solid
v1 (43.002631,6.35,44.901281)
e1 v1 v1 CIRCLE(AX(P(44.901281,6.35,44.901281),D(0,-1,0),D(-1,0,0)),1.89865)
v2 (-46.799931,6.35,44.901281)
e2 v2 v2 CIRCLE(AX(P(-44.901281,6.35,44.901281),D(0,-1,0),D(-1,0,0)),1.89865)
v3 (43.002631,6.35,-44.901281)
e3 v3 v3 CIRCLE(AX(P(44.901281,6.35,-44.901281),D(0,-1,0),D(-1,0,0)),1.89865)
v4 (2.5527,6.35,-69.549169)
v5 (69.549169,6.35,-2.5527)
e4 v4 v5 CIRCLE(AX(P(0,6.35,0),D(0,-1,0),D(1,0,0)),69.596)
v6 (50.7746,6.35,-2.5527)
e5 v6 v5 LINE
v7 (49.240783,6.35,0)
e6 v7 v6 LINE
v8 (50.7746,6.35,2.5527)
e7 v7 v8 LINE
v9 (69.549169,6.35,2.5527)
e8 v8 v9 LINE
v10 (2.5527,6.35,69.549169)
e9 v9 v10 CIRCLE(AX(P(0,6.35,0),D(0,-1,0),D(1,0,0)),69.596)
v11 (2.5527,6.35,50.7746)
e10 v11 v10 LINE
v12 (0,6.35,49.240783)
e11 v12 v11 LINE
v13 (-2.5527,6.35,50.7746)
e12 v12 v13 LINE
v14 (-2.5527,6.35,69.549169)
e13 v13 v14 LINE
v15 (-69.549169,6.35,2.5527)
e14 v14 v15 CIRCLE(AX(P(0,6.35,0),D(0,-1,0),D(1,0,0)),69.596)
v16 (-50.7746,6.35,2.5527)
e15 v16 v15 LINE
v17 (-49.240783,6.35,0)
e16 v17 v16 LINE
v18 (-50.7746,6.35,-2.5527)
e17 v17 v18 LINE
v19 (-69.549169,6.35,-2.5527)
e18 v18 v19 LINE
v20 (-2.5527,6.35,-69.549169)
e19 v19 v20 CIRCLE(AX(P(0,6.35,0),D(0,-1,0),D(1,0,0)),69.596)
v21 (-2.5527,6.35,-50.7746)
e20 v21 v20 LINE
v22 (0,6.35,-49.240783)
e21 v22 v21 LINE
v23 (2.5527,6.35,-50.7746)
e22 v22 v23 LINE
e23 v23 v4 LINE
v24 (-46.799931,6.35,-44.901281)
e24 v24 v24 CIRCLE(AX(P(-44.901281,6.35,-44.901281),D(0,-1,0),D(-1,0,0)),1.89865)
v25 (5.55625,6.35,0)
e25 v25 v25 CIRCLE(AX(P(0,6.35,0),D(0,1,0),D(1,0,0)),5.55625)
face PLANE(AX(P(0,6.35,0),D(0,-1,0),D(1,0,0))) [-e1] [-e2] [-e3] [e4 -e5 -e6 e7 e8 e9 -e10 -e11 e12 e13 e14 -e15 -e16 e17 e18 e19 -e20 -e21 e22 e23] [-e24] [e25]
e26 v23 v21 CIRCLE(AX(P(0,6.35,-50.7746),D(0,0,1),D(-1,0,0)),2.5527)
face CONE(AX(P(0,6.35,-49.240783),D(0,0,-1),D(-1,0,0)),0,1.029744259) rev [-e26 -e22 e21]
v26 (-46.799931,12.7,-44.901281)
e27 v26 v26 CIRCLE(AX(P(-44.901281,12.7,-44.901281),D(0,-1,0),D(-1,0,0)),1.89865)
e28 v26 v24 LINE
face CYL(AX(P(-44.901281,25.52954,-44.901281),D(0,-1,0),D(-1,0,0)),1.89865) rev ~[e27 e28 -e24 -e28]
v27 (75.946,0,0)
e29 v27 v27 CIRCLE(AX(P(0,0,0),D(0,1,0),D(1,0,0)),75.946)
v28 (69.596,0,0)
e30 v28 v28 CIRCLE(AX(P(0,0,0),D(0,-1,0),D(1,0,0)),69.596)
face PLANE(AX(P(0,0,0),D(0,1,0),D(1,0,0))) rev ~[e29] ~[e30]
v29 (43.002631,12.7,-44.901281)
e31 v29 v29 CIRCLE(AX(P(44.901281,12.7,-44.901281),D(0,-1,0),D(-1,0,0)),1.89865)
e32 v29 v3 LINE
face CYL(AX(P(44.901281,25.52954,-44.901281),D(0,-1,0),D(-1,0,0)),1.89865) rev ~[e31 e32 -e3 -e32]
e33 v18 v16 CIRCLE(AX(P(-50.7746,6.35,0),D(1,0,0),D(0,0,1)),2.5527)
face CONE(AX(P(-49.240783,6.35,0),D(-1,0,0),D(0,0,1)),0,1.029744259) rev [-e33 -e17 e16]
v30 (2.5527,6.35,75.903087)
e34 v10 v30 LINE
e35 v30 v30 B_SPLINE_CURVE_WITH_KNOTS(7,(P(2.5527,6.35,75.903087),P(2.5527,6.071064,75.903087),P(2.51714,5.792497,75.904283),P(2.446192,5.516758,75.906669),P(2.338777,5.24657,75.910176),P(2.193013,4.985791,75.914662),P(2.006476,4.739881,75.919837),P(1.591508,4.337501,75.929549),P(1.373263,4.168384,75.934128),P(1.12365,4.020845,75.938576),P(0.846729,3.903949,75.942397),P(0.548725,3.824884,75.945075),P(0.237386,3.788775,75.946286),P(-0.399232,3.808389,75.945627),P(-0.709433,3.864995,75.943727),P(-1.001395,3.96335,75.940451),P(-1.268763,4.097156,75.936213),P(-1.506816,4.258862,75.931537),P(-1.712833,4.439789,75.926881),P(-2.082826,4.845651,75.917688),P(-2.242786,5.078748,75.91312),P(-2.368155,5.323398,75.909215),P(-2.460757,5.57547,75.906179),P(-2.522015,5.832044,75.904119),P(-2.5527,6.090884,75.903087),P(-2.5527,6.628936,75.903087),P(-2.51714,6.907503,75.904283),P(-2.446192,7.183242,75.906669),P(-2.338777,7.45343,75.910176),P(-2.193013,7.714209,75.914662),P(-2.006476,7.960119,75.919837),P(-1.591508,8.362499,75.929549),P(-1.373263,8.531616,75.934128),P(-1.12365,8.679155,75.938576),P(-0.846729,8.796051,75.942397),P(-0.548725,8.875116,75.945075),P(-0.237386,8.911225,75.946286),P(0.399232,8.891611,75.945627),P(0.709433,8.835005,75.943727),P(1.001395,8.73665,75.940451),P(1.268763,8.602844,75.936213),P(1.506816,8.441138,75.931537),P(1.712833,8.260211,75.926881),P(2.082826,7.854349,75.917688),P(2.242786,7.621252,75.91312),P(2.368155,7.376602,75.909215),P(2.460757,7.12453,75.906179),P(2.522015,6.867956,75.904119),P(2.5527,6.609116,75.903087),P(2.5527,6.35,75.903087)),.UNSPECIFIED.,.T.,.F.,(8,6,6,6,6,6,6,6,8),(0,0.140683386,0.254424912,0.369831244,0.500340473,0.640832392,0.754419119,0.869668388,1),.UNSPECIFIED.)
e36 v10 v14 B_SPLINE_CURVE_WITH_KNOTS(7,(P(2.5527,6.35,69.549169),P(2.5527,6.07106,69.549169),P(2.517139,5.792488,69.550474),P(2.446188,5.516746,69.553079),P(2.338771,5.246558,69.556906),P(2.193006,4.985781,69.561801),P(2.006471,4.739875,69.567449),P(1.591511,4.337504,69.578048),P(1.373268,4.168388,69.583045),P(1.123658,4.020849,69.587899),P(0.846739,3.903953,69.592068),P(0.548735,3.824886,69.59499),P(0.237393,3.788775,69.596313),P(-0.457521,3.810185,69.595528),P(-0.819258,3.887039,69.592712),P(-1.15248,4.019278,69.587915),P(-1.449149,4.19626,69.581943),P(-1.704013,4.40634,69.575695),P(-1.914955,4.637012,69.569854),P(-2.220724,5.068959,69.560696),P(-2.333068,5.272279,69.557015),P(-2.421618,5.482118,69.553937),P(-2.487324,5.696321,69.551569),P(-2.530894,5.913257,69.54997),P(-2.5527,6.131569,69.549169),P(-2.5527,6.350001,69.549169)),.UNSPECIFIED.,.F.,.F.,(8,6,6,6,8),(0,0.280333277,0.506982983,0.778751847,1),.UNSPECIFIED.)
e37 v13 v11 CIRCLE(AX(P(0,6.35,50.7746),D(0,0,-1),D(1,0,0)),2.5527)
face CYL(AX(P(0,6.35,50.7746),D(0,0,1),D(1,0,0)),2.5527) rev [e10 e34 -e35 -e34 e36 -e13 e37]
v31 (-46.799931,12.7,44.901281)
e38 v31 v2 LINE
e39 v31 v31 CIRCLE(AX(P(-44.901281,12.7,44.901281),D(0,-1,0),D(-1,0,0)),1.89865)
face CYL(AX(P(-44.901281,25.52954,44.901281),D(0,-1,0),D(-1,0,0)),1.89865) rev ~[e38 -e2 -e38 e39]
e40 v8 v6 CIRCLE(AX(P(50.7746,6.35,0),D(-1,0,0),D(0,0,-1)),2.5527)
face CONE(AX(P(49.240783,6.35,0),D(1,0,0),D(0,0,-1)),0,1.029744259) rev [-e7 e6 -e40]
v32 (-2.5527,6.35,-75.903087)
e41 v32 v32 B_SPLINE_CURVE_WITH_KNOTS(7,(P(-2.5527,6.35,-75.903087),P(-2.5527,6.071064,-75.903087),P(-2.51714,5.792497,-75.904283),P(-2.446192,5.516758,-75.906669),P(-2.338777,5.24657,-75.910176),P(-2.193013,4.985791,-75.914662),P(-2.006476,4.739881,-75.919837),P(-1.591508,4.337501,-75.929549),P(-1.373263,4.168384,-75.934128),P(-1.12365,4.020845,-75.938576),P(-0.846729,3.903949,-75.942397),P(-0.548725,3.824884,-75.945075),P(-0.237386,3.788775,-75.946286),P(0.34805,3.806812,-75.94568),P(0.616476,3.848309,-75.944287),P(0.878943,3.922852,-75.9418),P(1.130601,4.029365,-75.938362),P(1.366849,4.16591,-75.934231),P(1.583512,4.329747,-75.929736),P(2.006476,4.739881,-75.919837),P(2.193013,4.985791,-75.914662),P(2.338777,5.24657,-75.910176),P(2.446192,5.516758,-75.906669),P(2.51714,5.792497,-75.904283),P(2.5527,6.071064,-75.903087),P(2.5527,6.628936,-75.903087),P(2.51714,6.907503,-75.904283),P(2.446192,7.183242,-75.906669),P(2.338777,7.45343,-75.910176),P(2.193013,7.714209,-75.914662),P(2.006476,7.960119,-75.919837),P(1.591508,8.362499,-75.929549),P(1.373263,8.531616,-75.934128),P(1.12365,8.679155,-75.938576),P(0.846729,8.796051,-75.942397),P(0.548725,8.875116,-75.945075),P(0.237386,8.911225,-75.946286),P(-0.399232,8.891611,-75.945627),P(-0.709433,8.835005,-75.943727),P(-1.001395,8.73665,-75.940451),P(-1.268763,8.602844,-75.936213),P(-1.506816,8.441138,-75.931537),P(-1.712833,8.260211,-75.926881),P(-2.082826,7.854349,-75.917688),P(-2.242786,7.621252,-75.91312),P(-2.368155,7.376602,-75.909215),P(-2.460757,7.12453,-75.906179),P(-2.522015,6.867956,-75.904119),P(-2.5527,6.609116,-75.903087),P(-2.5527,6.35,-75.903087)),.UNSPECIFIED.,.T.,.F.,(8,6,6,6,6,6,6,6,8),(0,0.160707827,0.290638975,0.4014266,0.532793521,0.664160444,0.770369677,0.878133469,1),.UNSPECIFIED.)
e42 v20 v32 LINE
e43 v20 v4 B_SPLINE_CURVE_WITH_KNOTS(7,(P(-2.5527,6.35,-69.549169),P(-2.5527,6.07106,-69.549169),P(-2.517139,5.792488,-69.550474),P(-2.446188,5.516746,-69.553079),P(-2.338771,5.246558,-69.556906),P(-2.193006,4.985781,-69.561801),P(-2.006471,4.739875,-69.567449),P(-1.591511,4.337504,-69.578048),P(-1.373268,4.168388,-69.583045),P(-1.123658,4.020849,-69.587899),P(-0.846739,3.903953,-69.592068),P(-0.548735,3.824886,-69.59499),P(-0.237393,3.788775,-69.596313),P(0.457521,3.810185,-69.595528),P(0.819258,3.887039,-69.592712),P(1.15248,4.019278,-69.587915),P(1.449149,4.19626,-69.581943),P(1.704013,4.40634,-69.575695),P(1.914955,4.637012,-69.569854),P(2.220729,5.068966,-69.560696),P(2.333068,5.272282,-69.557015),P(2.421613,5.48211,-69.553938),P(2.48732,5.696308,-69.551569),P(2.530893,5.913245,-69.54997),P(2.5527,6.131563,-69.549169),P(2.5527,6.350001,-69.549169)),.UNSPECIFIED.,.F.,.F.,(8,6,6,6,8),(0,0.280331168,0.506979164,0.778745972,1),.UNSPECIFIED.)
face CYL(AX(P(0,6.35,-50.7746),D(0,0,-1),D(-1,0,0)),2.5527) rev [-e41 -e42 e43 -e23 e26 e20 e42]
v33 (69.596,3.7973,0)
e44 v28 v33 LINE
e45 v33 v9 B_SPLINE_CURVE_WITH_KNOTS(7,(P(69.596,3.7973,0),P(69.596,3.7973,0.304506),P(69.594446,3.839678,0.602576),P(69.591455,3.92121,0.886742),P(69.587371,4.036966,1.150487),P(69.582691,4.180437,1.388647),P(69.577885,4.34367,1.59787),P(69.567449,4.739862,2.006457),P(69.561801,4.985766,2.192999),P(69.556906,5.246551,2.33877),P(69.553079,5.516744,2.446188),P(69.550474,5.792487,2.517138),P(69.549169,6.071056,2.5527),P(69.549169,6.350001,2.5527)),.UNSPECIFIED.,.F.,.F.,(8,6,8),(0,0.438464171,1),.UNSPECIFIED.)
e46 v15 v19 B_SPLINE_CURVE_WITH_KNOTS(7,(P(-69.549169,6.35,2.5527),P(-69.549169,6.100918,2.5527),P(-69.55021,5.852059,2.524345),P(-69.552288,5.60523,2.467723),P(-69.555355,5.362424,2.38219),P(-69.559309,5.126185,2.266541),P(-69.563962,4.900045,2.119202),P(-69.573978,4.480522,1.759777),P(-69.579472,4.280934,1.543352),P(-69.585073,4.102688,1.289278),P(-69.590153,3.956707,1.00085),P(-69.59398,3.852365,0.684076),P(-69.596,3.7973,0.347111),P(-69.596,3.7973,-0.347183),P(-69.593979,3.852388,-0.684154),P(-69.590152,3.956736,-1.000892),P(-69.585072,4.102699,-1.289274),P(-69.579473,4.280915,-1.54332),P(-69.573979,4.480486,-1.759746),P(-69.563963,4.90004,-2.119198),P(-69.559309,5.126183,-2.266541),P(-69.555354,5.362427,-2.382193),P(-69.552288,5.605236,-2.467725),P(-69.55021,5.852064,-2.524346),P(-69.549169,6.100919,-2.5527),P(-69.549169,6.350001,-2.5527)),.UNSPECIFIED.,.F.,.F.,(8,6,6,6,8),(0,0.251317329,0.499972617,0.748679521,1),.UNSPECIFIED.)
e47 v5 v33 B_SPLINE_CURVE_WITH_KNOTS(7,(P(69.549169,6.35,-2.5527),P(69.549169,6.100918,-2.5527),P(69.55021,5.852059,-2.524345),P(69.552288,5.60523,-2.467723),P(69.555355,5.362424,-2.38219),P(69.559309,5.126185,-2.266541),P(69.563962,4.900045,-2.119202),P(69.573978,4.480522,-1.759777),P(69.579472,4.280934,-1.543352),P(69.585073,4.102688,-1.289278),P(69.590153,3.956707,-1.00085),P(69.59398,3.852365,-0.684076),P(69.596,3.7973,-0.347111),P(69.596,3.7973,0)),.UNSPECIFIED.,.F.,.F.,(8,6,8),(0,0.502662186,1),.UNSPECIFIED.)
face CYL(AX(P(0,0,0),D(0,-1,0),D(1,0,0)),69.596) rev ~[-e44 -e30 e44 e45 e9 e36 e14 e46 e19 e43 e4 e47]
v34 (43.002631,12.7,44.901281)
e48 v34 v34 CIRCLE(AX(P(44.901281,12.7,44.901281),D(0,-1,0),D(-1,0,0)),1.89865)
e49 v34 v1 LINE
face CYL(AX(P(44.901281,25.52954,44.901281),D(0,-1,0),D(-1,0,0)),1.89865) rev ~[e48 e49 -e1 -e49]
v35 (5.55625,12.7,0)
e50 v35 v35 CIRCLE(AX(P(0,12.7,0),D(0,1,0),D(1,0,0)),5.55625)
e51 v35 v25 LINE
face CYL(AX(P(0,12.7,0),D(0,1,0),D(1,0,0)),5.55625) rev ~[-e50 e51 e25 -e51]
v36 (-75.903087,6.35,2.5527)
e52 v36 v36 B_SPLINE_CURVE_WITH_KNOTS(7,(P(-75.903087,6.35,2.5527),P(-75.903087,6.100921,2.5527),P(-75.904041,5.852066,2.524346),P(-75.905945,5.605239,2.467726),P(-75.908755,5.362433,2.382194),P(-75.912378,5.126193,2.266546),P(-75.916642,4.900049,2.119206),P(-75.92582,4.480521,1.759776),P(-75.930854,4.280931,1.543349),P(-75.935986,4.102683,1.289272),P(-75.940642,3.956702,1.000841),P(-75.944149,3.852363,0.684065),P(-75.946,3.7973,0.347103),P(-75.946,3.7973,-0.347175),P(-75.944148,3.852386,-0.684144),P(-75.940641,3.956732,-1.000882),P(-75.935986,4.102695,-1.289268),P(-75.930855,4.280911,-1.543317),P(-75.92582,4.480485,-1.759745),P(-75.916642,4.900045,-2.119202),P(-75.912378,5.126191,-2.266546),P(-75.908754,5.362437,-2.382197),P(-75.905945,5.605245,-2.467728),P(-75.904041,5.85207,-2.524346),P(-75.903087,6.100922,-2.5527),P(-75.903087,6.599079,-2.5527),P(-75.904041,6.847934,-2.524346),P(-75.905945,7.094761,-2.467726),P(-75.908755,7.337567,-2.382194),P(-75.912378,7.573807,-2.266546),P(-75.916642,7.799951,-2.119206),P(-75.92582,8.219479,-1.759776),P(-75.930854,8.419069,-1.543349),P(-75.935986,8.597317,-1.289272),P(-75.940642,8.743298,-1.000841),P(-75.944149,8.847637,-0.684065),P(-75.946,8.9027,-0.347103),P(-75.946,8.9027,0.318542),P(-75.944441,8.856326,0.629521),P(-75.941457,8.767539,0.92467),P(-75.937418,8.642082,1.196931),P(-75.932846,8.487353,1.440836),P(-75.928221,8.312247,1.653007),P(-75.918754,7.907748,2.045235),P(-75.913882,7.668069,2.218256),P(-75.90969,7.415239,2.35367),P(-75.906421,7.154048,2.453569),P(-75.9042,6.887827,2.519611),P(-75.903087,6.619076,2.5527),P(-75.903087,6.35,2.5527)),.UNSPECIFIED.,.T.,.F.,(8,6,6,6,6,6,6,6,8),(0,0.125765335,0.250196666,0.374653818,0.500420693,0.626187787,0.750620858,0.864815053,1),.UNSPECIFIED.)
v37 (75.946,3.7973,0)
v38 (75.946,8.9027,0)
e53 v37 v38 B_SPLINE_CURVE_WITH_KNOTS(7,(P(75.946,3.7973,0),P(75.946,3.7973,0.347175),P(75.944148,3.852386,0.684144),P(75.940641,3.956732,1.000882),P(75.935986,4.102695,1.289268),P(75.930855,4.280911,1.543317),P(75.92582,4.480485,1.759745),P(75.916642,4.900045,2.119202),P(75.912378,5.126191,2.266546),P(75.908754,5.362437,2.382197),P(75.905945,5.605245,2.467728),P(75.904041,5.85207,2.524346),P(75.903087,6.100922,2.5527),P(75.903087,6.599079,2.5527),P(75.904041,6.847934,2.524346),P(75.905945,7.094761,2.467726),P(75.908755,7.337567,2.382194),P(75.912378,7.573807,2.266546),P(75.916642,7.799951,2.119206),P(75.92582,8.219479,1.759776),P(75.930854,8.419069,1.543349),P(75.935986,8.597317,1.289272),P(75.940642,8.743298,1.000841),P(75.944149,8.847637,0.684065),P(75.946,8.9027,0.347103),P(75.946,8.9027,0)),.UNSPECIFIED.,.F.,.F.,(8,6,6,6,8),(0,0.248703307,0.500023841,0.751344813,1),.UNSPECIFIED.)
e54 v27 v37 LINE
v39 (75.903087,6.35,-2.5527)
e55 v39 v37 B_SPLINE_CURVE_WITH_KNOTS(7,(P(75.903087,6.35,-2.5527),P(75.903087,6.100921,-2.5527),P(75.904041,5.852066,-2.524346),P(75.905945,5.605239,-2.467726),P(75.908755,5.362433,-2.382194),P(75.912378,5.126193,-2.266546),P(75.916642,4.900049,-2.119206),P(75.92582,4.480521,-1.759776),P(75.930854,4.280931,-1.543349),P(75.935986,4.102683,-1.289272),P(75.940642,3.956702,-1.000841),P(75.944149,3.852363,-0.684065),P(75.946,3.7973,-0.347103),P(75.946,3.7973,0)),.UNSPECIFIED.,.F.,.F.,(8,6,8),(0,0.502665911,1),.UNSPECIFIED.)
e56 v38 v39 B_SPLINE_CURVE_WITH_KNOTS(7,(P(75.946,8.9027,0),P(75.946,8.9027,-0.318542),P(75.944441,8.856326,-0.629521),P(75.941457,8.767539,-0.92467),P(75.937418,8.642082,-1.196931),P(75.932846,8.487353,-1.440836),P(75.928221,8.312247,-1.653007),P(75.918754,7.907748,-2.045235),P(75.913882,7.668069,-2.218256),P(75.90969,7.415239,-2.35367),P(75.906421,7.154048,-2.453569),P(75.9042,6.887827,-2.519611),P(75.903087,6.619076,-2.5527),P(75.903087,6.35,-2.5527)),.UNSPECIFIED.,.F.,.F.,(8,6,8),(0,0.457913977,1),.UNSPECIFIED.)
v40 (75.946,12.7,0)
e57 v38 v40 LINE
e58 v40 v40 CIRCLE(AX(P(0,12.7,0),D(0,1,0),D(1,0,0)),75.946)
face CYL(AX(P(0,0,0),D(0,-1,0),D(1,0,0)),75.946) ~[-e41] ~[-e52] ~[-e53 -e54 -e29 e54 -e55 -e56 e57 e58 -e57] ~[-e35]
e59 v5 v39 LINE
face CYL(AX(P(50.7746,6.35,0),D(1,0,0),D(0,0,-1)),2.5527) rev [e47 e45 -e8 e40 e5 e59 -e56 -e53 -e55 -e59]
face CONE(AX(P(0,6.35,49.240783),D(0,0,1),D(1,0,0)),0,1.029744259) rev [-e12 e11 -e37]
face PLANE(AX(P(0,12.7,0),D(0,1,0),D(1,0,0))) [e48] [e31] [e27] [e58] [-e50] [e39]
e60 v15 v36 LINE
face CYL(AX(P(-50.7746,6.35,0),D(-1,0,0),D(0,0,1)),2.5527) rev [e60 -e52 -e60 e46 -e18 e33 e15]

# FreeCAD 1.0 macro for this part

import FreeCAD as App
import Part
import Sketcher

V = App.Vector
Q = App.Units.Quantity

doc = App.newDocument("Part")
body = doc.addObject("PartDesign::Body", "Body")

sketch1 = body.newObject("Sketcher::SketchObject", "Sketch")
sketch1.AttachmentSupport = (doc.getObject("XZ_Plane"), [""])
sketch1.MapMode = "FlatFace"
sketch1.addGeometry(Part.Circle(V(0, 0, 0), V(0, 0, 1), 76), False)
sketch1.addConstraint([
    Sketcher.Constraint("Coincident", 0, 3, -1, 1),
    Sketcher.Constraint("Diameter", 0, Q("5.98 in")),
])
pad1 = body.newObject("PartDesign::Pad", "Pad")
pad1.Profile = sketch1
pad1.Length = Q("0.5 in")
pad1.Reversed = True

sketch2 = body.newObject("Sketcher::SketchObject", "Sketch001")
sketch2.AttachmentSupport = (doc.getObject("XZ_Plane"), [""])
sketch2.MapMode = "FlatFace"
sketch2.AttachmentOffset = App.Placement(V(0, 0, -0.5 * 25.4), App.Rotation())
sketch2.addGeometry(Part.Circle(V(0, 0, 0), V(0, 0, 1), 6), False)
sketch2.addConstraint([
    Sketcher.Constraint("Coincident", 0, 3, -1, 1),
    Sketcher.Constraint("Diameter", 0, Q("0.4375 in")),
])
pocket1 = body.newObject("PartDesign::Pocket", "Pocket")
pocket1.Profile = sketch2
pocket1.Type = "ThroughAll"
pocket1.Midplane = True

sketch3 = body.newObject("Sketcher::SketchObject", "Sketch002")
sketch3.AttachmentSupport = (doc.getObject("XZ_Plane"), [""])
sketch3.MapMode = "FlatFace"
sketch3.AttachmentOffset = App.Placement(V(0, 0, -0.25 * 25.4), App.Rotation())
sketch3.addGeometry([
    Part.LineSegment(V(-49.2, 0, 0), V(-76.2, 0, 0)),
    Part.LineSegment(V(-76.2, 0, 0), V(-76.2, 2.6, 0)),
    Part.LineSegment(V(-76.2, 2.6, 0), V(-50.8, 2.6, 0)),
    Part.LineSegment(V(-50.8, 2.6, 0), V(-49.2, 0, 0)),
], False)
sketch3.addConstraint([
    Sketcher.Constraint("Coincident", 0, 2, 1, 1),
    Sketcher.Constraint("Coincident", 1, 2, 2, 1),
    Sketcher.Constraint("Coincident", 2, 2, 3, 1),
    Sketcher.Constraint("Coincident", 3, 2, 0, 1),
    Sketcher.Constraint("Horizontal", 0),
    Sketcher.Constraint("Vertical", 1),
    Sketcher.Constraint("Horizontal", 2),
    Sketcher.Constraint("PointOnObject", 0, 2, -1),
    Sketcher.Constraint("DistanceX", 2, 1, 2, 2, Q("1 in")),
    Sketcher.Constraint("Angle", 3, Q("-59 deg")),
    Sketcher.Constraint("DistanceY", 1, 1, 1, 2, Q("0.1005 in")),
    Sketcher.Constraint("DistanceX", 0, 2, -1, 1, Q("2.999 in")),
])
groove = body.newObject("PartDesign::Groove", "Groove")
groove.Profile = sketch3
groove.ReferenceAxis = (sketch3, ["H_Axis"])
groove.Angle = 360
doc.recompute()

polarpattern = body.newObject("PartDesign::PolarPattern", "PolarPattern")
polarpattern.Originals = [groove]
polarpattern.Axis = (doc.getObject("Y_Axis"), [""])
polarpattern.Angle = 360
polarpattern.Occurrences = 4
body.Tip = polarpattern

sketch4 = body.newObject("Sketcher::SketchObject", "Sketch003")
sketch4.AttachmentSupport = (doc.getObject("XZ_Plane"), [""])
sketch4.MapMode = "FlatFace"
sketch4.addGeometry(Part.Circle(V(0, 0, 0), V(0, 0, 1), 70), False)
sketch4.addConstraint([
    Sketcher.Constraint("Coincident", 0, 3, -1, 1),
    Sketcher.Constraint("Diameter", 0, Q("5.48 in")),
])
pocket2 = body.newObject("PartDesign::Pocket", "Pocket001")
pocket2.Profile = sketch4
pocket2.Length = Q("0.25 in")

sketch5 = body.newObject("Sketcher::SketchObject", "Sketch004")
sketch5.AttachmentSupport = (doc.getObject("XZ_Plane"), [""])
sketch5.MapMode = "FlatFace"
sketch5.AttachmentOffset = App.Placement(V(0, 0, -0.5 * 25.4), App.Rotation())
sketch5.addGeometry([
    Part.Circle(V(0, 0, 0), V(0, 0, 1), 1.9),
    Part.Circle(V(44.9, -44.9, 0), V(0, 0, 1), 1.9),
    Part.Circle(V(44.9, 44.9, 0), V(0, 0, 1), 1.9),
    Part.Circle(V(-44.9, 44.9, 0), V(0, 0, 1), 1.9),
    Part.Circle(V(-44.9, -44.9, 0), V(0, 0, 1), 1.9),
], False)
sketch5.addConstraint([
    Sketcher.Constraint("Coincident", 0, 3, -1, 1),
    Sketcher.Constraint("Equal", 0, 1),
    Sketcher.Constraint("Equal", 1, 2),
    Sketcher.Constraint("Equal", 2, 3),
    Sketcher.Constraint("Equal", 3, 4),
    Sketcher.Constraint("Symmetric", 1, 3, 3, 3, -1, 1),
    Sketcher.Constraint("Symmetric", 2, 3, 4, 3, -1, 1),
    Sketcher.Constraint("Symmetric", 2, 3, 3, 3, -2),
    Sketcher.Constraint("Diameter", 0, Q("0.1495 in")),
    Sketcher.Constraint("DistanceX", -1, 1, 1, 3, Q("44.901281 mm")),
    Sketcher.Constraint("DistanceY", 1, 3, -1, 1, Q("44.901281 mm")),
])
doc.recompute()
hole = body.newObject("PartDesign::Hole", "Hole")
hole.Profile = sketch5
hole.ThreadType = "None"
hole.Diameter = Q("0.1495 in")
hole.DepthType = "Dimension"
hole.Depth = Q("0.5051 in")
hole.DrillPoint = "Angled"
hole.DrillPointAngle = 118
hole.Reversed = True

doc.recompute()
